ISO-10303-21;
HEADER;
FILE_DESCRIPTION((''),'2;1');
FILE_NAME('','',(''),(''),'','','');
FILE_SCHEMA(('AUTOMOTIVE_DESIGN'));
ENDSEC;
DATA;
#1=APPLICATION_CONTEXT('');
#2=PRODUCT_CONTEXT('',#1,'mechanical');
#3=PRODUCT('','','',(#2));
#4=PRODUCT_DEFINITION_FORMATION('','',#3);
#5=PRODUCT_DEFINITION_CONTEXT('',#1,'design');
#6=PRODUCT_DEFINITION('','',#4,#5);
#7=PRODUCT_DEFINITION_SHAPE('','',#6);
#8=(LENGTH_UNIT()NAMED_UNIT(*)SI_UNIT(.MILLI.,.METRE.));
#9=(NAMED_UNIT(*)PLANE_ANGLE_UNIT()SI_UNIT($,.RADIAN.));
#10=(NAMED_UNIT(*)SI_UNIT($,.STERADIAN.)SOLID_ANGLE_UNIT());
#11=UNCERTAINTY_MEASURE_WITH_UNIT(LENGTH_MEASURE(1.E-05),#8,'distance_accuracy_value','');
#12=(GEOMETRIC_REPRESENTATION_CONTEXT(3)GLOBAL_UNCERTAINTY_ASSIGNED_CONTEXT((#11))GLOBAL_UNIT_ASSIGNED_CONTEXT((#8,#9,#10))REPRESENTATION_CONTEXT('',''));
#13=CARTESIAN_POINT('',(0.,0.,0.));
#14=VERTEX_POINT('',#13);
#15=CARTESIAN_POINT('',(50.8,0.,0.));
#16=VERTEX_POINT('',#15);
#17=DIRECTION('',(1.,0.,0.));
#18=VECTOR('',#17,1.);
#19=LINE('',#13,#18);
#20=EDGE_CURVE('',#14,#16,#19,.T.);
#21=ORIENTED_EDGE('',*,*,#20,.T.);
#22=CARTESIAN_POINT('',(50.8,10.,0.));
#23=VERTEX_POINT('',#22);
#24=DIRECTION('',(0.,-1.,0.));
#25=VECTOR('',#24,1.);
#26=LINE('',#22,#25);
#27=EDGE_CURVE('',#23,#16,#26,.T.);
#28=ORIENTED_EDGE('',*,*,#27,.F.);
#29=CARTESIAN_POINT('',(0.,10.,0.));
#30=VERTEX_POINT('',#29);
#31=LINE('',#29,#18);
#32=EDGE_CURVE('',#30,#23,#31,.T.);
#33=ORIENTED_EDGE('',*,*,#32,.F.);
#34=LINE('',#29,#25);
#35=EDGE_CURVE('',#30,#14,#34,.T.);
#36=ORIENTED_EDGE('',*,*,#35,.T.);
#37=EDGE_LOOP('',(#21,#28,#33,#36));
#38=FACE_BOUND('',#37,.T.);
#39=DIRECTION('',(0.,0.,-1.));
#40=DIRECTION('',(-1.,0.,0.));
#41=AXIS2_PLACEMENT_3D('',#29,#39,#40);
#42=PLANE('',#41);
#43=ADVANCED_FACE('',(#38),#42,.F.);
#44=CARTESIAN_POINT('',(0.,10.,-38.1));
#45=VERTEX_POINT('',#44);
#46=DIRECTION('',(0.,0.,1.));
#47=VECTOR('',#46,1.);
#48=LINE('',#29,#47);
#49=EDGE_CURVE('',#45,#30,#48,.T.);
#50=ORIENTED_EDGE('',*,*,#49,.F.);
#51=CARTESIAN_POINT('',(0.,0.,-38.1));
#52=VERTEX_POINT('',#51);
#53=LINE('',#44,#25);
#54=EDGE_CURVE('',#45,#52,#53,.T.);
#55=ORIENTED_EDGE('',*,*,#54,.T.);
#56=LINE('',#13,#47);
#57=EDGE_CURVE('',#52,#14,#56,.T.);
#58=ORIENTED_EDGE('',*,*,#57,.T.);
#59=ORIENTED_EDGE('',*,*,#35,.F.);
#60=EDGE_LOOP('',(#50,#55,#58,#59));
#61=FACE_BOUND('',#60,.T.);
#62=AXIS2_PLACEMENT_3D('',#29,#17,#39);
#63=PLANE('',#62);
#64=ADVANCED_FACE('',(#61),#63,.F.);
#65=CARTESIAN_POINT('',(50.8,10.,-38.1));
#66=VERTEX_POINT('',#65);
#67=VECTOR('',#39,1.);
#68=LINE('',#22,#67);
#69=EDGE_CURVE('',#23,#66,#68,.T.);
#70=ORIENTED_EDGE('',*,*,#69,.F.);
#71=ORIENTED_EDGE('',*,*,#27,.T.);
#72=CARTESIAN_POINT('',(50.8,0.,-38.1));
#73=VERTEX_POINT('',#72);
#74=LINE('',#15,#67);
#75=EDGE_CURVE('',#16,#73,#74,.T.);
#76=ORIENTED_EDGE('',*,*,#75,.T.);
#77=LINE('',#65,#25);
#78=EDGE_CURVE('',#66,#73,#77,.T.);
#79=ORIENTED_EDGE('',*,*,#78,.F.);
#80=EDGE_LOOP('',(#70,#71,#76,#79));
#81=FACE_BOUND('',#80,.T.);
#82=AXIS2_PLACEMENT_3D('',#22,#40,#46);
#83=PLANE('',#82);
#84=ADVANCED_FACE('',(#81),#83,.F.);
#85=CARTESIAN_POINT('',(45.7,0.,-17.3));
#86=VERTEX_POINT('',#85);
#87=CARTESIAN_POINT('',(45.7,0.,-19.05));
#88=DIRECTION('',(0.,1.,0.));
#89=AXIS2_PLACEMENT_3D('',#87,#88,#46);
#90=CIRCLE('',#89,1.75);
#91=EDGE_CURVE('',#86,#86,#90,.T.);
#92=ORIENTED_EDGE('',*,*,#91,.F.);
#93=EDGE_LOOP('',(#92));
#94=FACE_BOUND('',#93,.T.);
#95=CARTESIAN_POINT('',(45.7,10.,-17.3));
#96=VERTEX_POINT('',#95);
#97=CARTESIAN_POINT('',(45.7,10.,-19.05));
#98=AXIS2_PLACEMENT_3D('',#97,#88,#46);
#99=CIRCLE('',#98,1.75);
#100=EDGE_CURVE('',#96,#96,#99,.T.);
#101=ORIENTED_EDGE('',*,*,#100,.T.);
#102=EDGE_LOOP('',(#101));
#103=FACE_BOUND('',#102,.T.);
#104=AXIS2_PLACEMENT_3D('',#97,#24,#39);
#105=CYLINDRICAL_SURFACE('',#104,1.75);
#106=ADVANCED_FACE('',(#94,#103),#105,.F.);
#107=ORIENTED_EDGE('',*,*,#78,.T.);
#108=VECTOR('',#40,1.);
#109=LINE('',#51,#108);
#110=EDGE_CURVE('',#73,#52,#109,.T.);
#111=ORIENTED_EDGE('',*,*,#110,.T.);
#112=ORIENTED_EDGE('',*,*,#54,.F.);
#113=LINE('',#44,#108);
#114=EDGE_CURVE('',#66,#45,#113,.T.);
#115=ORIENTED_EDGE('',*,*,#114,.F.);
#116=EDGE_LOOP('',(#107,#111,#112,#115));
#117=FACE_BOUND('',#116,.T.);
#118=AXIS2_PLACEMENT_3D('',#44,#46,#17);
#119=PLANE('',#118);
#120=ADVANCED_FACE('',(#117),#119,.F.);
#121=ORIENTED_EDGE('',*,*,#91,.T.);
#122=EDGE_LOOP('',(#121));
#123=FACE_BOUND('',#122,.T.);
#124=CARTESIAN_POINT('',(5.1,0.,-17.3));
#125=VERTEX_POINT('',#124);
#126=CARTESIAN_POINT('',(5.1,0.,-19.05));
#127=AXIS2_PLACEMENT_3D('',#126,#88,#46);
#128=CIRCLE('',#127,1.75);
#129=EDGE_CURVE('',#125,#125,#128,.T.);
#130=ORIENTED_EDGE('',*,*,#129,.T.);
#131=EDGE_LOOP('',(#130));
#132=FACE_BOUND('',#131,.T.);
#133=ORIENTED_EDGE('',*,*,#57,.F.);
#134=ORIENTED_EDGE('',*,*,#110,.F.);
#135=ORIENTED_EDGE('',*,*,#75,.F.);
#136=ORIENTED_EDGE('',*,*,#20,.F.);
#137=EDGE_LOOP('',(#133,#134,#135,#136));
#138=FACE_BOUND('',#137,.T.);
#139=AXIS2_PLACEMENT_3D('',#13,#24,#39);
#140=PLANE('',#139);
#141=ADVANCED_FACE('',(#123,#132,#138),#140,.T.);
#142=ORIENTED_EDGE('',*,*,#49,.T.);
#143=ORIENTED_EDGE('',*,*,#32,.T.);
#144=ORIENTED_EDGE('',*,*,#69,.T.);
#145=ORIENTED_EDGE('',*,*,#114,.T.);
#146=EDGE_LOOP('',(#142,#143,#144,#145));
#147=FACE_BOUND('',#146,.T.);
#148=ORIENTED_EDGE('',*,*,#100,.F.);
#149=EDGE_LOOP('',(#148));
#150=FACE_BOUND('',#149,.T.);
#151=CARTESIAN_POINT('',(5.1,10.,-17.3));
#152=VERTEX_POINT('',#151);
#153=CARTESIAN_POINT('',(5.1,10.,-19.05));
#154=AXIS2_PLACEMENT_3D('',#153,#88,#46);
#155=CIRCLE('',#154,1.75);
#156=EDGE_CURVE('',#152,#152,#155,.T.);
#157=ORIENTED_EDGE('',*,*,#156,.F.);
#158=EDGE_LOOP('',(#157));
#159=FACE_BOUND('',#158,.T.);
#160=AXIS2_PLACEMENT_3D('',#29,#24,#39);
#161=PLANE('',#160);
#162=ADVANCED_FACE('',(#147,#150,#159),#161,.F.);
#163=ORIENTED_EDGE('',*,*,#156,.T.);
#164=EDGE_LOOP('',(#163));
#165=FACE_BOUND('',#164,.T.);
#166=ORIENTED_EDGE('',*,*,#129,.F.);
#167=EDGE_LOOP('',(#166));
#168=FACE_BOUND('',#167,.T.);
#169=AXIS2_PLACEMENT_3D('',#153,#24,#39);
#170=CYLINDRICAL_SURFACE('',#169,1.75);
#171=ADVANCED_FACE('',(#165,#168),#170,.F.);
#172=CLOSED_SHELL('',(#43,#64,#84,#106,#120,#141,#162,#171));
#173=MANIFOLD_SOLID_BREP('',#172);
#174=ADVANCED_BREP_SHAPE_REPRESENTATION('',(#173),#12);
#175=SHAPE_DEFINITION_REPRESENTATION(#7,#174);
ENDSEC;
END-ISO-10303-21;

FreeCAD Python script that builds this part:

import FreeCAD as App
import Part
import Sketcher

V = App.Vector


def add_polygon(sketch, points):
    """Adds a closed chain of lines whose ends are joined by coincident constraints."""
    first, n = sketch.GeometryCount, len(points)
    for a, b in zip(points, points[1:] + points[:1]):
        sketch.addGeometry(Part.LineSegment(App.Vector(*a, 0), App.Vector(*b, 0)), False)
    for i in range(n):
        sketch.addConstraint(Sketcher.Constraint("Coincident", first + i, 2, first + (i + 1) % n, 1))

doc = App.newDocument("Part")
body = doc.addObject("PartDesign::Body", "Body")

sketch1 = body.newObject("Sketcher::SketchObject", "Sketch")
sketch1.AttachmentSupport = (doc.getObject("XZ_Plane"), [""])
sketch1.MapMode = "FlatFace"
add_polygon(sketch1, [(0, -38.1), (0, 0), (50.8, 0), (50.8, -38.1)])
sketch1.addGeometry(Part.Circle(V(5.1, -19.05, 0), V(0, 0, 1), 1.75), False)
sketch1.addGeometry(Part.Circle(V(45.7, -19.05, 0), V(0, 0, 1), 1.75), False)
sketch1.addConstraint(Sketcher.Constraint("Vertical", 0))
sketch1.addConstraint(Sketcher.Constraint("Horizontal", 1))
sketch1.addConstraint(Sketcher.Constraint("Vertical", 2))
sketch1.addConstraint(Sketcher.Constraint("Horizontal", 3))
sketch1.addConstraint(Sketcher.Constraint("Coincident", 0, 2, -1, 1))
sketch1.addConstraint(Sketcher.Constraint("Equal", 4, 5))
sketch1.addConstraint(Sketcher.Constraint("Horizontal", 4, 3, 5, 3))
sketch1.addConstraint(Sketcher.Constraint("Diameter", 4, 3.5))
sketch1.addConstraint(Sketcher.Constraint("DistanceX", 1, 1, 1, 2, 50.8))
sketch1.addConstraint(Sketcher.Constraint("DistanceY", 0, 1, 0, 2, 38.1))
sketch1.addConstraint(Sketcher.Constraint("DistanceX", -1, 1, 4, 3, 5.1))
sketch1.addConstraint(Sketcher.Constraint("DistanceX", -1, 1, 5, 3, 45.7))
sketch1.addConstraint(Sketcher.Constraint("DistanceY", 4, 3, -1, 1, 19.05))
pad1 = body.newObject("PartDesign::Pad", "Pad")
pad1.Profile = sketch1
pad1.Length = 10
pad1.Reversed = True

doc.recompute()
